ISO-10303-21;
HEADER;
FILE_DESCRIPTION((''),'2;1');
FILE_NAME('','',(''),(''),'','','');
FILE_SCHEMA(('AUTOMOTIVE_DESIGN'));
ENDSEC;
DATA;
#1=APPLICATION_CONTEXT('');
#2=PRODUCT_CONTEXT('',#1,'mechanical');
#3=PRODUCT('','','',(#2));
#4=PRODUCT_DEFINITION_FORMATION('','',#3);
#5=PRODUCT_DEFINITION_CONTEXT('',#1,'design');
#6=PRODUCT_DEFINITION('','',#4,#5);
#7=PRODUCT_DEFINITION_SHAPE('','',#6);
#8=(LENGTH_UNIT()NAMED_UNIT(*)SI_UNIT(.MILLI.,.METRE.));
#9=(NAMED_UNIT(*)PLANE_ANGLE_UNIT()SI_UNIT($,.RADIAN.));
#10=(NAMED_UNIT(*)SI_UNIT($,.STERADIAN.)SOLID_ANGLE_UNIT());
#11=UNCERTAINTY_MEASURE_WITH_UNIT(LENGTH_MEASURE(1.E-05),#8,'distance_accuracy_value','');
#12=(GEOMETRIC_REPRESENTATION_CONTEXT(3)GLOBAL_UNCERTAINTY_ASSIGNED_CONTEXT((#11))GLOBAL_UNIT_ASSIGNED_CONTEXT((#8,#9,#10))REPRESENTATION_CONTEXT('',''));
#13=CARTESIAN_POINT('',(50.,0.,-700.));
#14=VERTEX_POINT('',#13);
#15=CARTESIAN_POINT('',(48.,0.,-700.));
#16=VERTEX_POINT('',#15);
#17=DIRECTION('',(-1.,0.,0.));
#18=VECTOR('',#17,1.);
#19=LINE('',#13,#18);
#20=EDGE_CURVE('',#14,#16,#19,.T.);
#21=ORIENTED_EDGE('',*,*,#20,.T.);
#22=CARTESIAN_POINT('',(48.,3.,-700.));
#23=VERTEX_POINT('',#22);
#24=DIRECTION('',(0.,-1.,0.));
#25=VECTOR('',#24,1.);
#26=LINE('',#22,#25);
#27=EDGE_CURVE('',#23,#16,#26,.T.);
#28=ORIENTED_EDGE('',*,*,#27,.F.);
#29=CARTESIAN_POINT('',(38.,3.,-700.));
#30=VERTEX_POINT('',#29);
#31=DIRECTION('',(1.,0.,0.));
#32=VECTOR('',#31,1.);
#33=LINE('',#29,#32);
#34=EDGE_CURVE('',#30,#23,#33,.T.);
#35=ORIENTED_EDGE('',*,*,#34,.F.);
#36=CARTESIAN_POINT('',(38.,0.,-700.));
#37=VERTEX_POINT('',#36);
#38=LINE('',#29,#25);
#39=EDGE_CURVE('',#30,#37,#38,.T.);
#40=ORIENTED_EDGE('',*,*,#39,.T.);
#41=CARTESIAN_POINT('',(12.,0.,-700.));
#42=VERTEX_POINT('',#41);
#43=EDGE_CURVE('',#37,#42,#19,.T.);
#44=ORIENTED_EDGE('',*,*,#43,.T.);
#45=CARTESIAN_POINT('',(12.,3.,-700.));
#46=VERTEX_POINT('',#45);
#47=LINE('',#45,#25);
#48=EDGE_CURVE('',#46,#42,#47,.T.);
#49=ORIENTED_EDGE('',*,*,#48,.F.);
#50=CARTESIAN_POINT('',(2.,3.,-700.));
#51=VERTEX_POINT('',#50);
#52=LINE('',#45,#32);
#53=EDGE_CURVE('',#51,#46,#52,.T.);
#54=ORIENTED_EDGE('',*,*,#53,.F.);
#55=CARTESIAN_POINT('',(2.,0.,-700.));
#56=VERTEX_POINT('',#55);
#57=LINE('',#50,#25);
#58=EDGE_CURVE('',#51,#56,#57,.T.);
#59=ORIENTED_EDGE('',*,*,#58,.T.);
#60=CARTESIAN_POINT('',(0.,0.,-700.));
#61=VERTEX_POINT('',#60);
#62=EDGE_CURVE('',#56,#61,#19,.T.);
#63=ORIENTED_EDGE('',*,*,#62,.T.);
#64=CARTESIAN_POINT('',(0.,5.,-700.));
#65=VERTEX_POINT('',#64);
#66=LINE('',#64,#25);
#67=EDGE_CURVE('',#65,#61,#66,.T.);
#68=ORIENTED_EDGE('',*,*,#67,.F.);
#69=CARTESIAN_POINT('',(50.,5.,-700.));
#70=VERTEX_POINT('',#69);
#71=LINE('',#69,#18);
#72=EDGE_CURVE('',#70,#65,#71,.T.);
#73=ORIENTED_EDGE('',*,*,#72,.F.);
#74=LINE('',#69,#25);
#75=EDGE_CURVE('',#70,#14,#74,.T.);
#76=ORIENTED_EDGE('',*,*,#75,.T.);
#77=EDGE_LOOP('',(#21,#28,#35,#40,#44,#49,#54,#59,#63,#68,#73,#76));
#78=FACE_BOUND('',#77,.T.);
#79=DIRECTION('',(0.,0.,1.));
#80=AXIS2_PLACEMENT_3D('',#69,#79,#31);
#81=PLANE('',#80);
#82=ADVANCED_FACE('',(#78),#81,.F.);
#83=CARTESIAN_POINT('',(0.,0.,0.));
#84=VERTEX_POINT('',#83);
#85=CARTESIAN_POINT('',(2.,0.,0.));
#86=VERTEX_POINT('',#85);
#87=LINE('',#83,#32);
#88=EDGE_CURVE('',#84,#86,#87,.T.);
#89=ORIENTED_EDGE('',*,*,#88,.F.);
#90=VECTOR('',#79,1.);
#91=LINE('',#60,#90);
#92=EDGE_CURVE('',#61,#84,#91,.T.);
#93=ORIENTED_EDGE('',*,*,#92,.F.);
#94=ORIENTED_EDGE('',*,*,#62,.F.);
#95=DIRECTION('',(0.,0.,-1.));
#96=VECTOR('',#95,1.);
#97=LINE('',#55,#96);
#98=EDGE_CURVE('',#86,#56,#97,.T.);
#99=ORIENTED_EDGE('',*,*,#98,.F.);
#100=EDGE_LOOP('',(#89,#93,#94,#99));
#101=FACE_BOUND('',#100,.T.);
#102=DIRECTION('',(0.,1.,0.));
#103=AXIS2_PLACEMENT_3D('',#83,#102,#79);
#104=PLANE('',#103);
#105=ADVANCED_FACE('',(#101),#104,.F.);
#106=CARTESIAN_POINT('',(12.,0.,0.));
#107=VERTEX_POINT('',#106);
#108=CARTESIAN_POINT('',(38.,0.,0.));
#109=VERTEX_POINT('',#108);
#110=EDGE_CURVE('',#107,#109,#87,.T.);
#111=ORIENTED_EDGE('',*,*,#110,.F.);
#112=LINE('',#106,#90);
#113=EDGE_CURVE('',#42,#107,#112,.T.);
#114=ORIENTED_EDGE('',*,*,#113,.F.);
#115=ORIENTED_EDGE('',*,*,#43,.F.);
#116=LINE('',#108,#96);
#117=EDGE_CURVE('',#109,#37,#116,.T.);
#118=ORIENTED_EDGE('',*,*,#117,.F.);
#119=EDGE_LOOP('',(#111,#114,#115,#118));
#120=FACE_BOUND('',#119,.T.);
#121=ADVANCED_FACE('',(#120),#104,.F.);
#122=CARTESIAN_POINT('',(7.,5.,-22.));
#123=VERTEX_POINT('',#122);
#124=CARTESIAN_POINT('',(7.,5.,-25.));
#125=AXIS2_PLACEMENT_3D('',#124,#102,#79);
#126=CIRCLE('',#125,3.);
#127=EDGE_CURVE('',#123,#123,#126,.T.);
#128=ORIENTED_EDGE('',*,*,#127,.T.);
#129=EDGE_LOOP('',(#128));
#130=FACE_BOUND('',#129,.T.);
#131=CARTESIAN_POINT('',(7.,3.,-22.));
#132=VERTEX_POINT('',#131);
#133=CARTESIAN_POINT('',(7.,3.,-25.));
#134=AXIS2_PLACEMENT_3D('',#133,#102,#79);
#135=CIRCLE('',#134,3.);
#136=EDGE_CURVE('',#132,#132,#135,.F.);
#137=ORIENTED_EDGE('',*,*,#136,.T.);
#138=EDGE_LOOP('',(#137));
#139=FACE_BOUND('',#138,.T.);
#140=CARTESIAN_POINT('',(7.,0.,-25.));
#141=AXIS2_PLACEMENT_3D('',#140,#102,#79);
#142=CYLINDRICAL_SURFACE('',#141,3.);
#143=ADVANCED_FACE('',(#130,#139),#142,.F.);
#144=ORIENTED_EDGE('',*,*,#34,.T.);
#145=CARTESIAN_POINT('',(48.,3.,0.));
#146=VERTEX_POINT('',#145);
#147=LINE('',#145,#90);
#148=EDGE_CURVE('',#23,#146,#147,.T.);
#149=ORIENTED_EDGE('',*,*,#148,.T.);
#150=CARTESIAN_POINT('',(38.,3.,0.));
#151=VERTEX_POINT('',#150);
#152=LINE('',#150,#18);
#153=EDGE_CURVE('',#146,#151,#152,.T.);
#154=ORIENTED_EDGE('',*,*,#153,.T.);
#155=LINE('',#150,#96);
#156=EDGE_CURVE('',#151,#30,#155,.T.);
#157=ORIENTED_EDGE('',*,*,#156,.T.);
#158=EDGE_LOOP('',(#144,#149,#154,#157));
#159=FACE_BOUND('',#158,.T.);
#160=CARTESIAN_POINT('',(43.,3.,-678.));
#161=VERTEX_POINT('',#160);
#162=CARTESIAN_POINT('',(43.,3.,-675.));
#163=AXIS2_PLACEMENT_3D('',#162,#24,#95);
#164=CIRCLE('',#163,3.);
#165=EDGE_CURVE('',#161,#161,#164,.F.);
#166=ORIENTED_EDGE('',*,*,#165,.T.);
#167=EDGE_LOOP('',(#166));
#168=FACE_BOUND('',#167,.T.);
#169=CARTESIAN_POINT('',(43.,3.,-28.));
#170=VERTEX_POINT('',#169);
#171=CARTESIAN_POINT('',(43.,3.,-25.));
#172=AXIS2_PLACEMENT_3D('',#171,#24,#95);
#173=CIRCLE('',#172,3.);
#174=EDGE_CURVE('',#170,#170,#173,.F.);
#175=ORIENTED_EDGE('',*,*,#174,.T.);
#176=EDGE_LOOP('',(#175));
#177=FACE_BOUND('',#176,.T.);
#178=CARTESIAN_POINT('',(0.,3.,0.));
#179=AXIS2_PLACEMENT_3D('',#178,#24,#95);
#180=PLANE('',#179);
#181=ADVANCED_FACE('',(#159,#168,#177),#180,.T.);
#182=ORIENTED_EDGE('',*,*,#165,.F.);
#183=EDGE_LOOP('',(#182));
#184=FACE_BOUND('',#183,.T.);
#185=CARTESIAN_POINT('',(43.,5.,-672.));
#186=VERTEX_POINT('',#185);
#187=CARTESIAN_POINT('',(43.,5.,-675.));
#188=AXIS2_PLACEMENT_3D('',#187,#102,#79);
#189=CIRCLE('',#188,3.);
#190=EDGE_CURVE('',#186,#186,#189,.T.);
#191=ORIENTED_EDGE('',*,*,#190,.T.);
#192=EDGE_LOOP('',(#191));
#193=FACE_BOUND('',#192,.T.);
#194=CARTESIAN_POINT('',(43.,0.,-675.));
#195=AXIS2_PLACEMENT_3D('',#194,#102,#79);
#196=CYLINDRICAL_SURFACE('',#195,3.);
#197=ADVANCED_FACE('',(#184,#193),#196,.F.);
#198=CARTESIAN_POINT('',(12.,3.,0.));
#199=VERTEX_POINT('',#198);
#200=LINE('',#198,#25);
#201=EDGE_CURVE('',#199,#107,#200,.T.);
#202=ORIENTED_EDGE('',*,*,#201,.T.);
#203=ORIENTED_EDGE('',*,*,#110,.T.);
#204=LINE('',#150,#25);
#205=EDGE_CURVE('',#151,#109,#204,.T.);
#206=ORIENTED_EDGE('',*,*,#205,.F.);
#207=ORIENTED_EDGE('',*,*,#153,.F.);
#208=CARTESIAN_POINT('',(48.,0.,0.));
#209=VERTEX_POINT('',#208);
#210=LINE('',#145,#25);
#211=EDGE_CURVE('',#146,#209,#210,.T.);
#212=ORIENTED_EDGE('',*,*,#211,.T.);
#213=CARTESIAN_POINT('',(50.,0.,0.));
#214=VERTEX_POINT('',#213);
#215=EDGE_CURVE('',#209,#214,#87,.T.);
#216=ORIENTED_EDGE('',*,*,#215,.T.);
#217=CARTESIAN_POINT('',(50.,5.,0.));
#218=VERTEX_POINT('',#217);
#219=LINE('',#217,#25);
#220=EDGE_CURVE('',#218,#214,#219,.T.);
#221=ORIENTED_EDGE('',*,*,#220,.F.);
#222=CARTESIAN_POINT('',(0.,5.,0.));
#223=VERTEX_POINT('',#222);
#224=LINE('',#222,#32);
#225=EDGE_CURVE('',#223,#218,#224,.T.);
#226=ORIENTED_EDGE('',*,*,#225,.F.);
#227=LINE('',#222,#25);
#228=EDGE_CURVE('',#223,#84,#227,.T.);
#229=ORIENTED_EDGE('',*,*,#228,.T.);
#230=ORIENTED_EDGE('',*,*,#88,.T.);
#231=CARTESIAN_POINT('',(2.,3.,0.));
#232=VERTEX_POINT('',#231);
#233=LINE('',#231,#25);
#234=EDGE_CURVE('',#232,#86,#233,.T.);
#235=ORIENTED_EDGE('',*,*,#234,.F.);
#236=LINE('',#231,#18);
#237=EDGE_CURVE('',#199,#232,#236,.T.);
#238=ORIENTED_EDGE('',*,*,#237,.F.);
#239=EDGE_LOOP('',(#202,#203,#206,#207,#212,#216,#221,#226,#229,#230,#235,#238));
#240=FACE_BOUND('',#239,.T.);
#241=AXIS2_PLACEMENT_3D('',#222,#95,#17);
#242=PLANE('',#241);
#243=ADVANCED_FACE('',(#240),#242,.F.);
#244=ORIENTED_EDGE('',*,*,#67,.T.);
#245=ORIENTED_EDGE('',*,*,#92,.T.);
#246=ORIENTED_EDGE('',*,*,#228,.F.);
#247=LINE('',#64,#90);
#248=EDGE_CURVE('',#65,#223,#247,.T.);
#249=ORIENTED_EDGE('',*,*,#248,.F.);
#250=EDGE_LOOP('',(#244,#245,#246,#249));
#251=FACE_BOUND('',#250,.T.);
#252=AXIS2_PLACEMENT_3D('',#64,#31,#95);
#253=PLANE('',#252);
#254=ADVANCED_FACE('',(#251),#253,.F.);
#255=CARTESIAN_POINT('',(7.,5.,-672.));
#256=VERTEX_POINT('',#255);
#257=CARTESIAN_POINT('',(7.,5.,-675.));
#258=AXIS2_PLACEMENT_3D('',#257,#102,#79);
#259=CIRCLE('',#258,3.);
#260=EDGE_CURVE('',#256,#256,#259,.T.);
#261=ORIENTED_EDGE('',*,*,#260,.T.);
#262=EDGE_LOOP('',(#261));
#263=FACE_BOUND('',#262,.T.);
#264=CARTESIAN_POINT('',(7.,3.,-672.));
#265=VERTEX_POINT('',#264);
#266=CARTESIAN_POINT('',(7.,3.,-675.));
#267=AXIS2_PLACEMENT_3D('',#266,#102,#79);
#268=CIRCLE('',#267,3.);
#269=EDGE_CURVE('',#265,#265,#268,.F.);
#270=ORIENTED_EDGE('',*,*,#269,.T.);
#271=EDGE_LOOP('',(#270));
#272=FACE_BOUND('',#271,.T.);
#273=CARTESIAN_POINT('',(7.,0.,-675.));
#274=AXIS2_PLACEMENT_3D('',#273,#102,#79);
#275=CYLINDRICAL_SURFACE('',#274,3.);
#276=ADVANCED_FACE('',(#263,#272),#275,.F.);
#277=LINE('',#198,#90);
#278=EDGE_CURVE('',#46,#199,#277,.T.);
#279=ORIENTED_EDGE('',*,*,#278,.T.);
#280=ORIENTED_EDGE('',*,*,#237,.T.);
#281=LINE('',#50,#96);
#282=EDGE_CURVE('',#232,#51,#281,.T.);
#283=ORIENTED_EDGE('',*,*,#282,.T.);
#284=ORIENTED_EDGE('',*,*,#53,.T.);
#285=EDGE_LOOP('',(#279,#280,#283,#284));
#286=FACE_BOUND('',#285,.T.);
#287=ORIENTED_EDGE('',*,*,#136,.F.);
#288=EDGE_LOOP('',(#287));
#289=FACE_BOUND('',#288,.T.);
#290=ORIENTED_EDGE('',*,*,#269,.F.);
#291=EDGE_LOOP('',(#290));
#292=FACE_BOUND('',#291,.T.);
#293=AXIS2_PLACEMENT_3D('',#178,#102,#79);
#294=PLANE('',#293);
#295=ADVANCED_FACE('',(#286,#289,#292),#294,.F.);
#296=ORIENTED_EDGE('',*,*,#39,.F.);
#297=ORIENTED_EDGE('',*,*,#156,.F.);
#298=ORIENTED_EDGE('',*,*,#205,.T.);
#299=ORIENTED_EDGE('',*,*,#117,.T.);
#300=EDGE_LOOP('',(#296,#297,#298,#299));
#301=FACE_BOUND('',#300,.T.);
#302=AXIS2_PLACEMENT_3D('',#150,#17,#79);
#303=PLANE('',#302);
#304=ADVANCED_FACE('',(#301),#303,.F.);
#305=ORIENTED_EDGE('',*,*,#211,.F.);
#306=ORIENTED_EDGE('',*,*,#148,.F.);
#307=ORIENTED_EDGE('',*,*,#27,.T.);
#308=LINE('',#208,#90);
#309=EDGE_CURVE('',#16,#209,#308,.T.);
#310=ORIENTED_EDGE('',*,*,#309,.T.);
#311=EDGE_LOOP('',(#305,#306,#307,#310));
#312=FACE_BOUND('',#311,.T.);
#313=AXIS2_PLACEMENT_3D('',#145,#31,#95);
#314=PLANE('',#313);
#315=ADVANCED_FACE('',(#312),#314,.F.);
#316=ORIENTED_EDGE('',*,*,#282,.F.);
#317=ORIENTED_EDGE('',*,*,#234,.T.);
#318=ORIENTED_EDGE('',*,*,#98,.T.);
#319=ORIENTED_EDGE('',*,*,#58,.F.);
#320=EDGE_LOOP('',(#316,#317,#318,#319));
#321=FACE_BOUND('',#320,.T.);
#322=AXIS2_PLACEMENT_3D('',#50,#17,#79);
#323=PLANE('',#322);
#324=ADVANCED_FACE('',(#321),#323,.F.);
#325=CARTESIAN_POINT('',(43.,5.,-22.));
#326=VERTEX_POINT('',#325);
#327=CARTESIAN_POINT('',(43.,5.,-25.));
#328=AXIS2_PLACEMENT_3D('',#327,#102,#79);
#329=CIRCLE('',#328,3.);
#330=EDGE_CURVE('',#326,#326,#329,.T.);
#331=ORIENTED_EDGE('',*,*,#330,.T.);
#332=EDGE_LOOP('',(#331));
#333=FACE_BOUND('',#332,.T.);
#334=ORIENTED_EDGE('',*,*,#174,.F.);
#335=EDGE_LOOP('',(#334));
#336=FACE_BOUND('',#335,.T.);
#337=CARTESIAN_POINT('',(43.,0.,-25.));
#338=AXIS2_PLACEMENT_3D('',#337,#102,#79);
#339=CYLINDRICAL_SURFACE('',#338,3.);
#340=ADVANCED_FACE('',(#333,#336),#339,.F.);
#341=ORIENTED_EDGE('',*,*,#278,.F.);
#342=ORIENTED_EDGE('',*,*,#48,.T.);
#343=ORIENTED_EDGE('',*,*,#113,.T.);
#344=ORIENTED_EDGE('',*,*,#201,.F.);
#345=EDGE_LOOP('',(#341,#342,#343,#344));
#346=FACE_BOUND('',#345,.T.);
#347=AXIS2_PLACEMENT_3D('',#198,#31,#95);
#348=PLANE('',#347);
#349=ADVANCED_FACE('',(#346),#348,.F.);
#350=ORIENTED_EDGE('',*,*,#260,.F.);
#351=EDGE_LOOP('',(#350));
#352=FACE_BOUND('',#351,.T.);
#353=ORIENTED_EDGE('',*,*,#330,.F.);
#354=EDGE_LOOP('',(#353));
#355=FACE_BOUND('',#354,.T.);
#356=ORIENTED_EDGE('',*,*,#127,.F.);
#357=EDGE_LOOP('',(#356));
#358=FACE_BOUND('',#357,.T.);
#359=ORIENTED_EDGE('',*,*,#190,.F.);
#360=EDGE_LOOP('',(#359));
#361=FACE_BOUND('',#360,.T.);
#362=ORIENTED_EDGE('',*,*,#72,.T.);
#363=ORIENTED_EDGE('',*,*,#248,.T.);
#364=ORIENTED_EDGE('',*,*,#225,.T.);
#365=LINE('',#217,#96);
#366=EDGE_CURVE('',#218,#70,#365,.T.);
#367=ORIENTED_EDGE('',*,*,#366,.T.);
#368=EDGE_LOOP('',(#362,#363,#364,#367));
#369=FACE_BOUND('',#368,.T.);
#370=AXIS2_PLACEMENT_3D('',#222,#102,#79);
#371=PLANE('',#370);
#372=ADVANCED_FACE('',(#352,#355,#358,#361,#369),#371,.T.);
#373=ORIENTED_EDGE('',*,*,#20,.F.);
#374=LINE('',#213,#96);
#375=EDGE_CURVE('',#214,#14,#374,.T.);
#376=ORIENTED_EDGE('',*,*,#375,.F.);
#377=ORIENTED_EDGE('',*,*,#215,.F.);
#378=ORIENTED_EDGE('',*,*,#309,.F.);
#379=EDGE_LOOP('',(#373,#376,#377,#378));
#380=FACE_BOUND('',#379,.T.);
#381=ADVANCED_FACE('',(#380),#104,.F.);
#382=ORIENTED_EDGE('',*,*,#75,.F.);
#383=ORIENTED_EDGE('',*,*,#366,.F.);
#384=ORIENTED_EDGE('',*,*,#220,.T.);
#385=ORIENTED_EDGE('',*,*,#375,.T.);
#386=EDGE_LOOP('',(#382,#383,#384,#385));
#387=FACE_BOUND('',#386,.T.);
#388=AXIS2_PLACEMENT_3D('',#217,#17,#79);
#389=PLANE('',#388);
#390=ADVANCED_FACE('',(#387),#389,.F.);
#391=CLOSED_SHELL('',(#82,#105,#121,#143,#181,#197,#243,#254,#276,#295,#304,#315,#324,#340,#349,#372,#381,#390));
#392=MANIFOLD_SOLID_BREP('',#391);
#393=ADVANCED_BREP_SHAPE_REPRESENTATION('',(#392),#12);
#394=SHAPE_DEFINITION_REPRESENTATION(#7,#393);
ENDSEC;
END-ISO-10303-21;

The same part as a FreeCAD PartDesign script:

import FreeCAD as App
import Part
import Sketcher
from FreeCAD import Vector


def add_polygon(sketch, points):
    """Adds a closed chain of lines whose ends are joined by coincident constraints."""
    first, n = sketch.GeometryCount, len(points)
    for a, b in zip(points, points[1:] + points[:1]):
        sketch.addGeometry(Part.LineSegment(App.Vector(*a, 0), App.Vector(*b, 0)), False)
    for i in range(n):
        sketch.addConstraint(Sketcher.Constraint("Coincident", first + i, 2, first + (i + 1) % n, 1))

doc = App.newDocument("Part")
body = doc.addObject("PartDesign::Body", "Body")

sketch1 = body.newObject("Sketcher::SketchObject", "Sketch")
sketch1.AttachmentSupport = (doc.getObject("XZ_Plane"), [""])
sketch1.MapMode = "FlatFace"
add_polygon(sketch1, [(0, -700), (0, 0), (50, 0), (50, -700)])
sketch1.addConstraint([
    Sketcher.Constraint("Vertical", 0),
    Sketcher.Constraint("Horizontal", 1),
    Sketcher.Constraint("Vertical", 2),
    Sketcher.Constraint("Horizontal", 3),
    Sketcher.Constraint("Coincident", 0, 2, -1, 1),
    Sketcher.Constraint("DistanceX", 1, 1, 1, 2, 50.0),
    Sketcher.Constraint("DistanceY", 0, 1, 0, 2, 700.0),
])
pad1 = body.newObject("PartDesign::Pad", "Pad")
pad1.Profile = sketch1
pad1.Length = 5
pad1.Reversed = True

sketch2 = body.newObject("Sketcher::SketchObject", "Sketch001")
sketch2.AttachmentSupport = (doc.getObject("XZ_Plane"), [""])
sketch2.MapMode = "FlatFace"
sketch2.AttachmentOffset = App.Placement(Vector(0, 0, -5), App.Rotation())
sketch2.addGeometry([
    Part.Circle(Vector(43, -25, 0), Vector(0, 0, 1), 3),
    Part.Circle(Vector(7, -25, 0), Vector(0, 0, 1), 3),
    Part.Circle(Vector(43, -675, 0), Vector(0, 0, 1), 3),
    Part.Circle(Vector(7, -675, 0), Vector(0, 0, 1), 3),
], False)
sketch2.addConstraint([
    Sketcher.Constraint("Equal", 0, 1),
    Sketcher.Constraint("Equal", 1, 2),
    Sketcher.Constraint("Equal", 2, 3),
    Sketcher.Constraint("Horizontal", 0, 3, 1, 3),
    Sketcher.Constraint("Horizontal", 2, 3, 3, 3),
    Sketcher.Constraint("Vertical", 0, 3, 2, 3),
    Sketcher.Constraint("Vertical", 1, 3, 3, 3),
    Sketcher.Constraint("Diameter", 0, 6.0),
    Sketcher.Constraint("DistanceX", -1, 1, 0, 3, 43.0),
    Sketcher.Constraint("DistanceY", 0, 3, -1, 1, 25.0),
    Sketcher.Constraint("DistanceX", -1, 1, 1, 3, 7.0),
    Sketcher.Constraint("DistanceY", 2, 3, -1, 1, 675.0),
])
pocket1 = body.newObject("PartDesign::Pocket", "Pocket")
pocket1.Profile = sketch2
pocket1.Type = "ThroughAll"
pocket1.Reversed = True

sketch3 = body.newObject("Sketcher::SketchObject", "Sketch002")
sketch3.AttachmentSupport = (doc.getObject("XZ_Plane"), [""])
sketch3.MapMode = "FlatFace"
add_polygon(sketch3, [(2, 0), (2, -700), (12, -700), (12, 0)])
add_polygon(sketch3, [(38, 0), (38, -700), (48, -700), (48, 0)])
sketch3.addConstraint([
    Sketcher.Constraint("Vertical", 0),
    Sketcher.Constraint("Horizontal", 1),
    Sketcher.Constraint("Vertical", 2),
    Sketcher.Constraint("Horizontal", 3),
    Sketcher.Constraint("Vertical", 4),
    Sketcher.Constraint("Horizontal", 5),
    Sketcher.Constraint("Vertical", 6),
    Sketcher.Constraint("Horizontal", 7),
    Sketcher.Constraint("PointOnObject", 2, 2, -1),
    Sketcher.Constraint("PointOnObject", 6, 2, -1),
    Sketcher.Constraint("Horizontal", 1, 2, 4, 2),
    Sketcher.Constraint("Equal", 3, 5),
    Sketcher.Constraint("DistanceX", 1, 1, 1, 2, 10.0),
    Sketcher.Constraint("DistanceY", 0, 2, 0, 1, 700.0),
    Sketcher.Constraint("DistanceX", -1, 1, 0, 2, 2.0),
    Sketcher.Constraint("DistanceX", -1, 1, 4, 2, 38.0),
])
pocket2 = body.newObject("PartDesign::Pocket", "Pocket001")
pocket2.Profile = sketch3
pocket2.Length = 3

doc.recompute()
